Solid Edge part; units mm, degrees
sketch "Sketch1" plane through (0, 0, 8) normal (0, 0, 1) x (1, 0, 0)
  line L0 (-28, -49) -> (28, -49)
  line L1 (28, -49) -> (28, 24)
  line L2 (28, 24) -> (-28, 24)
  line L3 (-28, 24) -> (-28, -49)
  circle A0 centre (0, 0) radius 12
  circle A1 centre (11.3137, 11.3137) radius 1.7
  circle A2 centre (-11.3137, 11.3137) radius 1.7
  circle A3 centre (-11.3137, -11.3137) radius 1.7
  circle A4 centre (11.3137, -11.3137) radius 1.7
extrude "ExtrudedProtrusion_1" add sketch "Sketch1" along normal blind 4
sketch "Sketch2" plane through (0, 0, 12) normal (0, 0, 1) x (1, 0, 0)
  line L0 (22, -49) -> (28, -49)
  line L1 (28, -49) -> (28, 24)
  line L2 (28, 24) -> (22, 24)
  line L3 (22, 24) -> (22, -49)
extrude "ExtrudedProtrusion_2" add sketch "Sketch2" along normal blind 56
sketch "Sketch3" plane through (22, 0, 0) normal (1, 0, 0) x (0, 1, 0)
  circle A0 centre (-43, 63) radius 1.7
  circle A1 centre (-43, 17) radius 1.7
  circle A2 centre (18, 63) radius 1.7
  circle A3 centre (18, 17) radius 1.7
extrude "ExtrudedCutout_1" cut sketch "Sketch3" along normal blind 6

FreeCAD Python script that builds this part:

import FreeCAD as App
import Part
import Sketcher


def add_polygon(sketch, points):
    """Adds a closed chain of lines whose ends are joined by coincident constraints."""
    first, n = sketch.GeometryCount, len(points)
    for a, b in zip(points, points[1:] + points[:1]):
        sketch.addGeometry(Part.LineSegment(App.Vector(*a, 0), App.Vector(*b, 0)), False)
    for i in range(n):
        sketch.addConstraint(Sketcher.Constraint("Coincident", first + i, 2, first + (i + 1) % n, 1))

doc = App.newDocument("Part")
params = doc.addObject("Spreadsheet::Sheet", "Params")
for row, (alias, value) in enumerate([
    ("sketch1_diameter", "24 mm"),
    ("sketch1_diameter2", "3.4 mm"),
    ("sketch1_width", "56 mm"),
    ("sketch1_height", "73 mm"),
    ("pad1_length", "4 mm"),
    ("sketch2_width", "6 mm"),
    ("sketch2_height", "73 mm"),
    ("pad2_length", "56 mm"),
    ("sketch3_diameter", "3.4 mm"),
    ("pocket1_length", "6 mm"),
], start=1):
    params.set(f"A{row}", alias)
    params.set(f"B{row}", "=" + value)
    params.setAlias(f"B{row}", alias)

body = doc.addObject("PartDesign::Body", "Body")

sketch1 = doc.addObject("Sketcher::SketchObject", "Sketch")
body.addObject(sketch1)
sketch1.AttachmentSupport = (doc.XY_Plane, [""])
sketch1.MapMode = "FlatFace"
sketch1.AttachmentOffset = App.Placement(App.Vector(0, 0, 8), App.Rotation())
add_polygon(sketch1, [(-28, 24), (-28, -49), (28, -49), (28, 24)])
sketch1.addGeometry(Part.Circle(App.Vector(-11.3, -11.3, 0), App.Vector(0, 0, 1), 1.7), False)
sketch1.addGeometry(Part.Circle(App.Vector(-11.3, 11.3, 0), App.Vector(0, 0, 1), 1.7), False)
sketch1.addGeometry(Part.Circle(App.Vector(11.3, -11.3, 0), App.Vector(0, 0, 1), 1.7), False)
sketch1.addGeometry(Part.Circle(App.Vector(0, 0, 0), App.Vector(0, 0, 1), 12), False)
sketch1.addGeometry(Part.Circle(App.Vector(11.3, 11.3, 0), App.Vector(0, 0, 1), 1.7), False)
sketch1.addConstraint([
    Sketcher.Constraint("Vertical", 0),
    Sketcher.Constraint("Horizontal", 1),
    Sketcher.Constraint("Vertical", 2),
    Sketcher.Constraint("Horizontal", 3),
    Sketcher.Constraint("Coincident", 7, 3, -1, 1),
    Sketcher.Constraint("Equal", 4, 5),
    Sketcher.Constraint("Equal", 5, 6),
    Sketcher.Constraint("Equal", 6, 8),
    Sketcher.Constraint("Symmetric", 5, 3, 6, 3, -1, 1),
    Sketcher.Constraint("Symmetric", 4, 3, 8, 3, -1, 1),
    Sketcher.Constraint("Symmetric", 4, 3, 6, 3, -2),
    Sketcher.Constraint("Diameter", 7, 24.0),
    Sketcher.Constraint("Diameter", 4, 3.4),
    Sketcher.Constraint("DistanceX", 1, 1, 1, 2, 56.0),
    Sketcher.Constraint("DistanceY", 0, 2, 0, 1, 73.0),
    Sketcher.Constraint("DistanceX", 0, 2, -1, 1, 28.0),
    Sketcher.Constraint("DistanceY", 0, 2, -1, 1, 49.0),
    Sketcher.Constraint("DistanceX", 4, 3, -1, 1, 11.3137),
    Sketcher.Constraint("DistanceY", 4, 3, -1, 1, 11.3137),
])
sketch1.setExpression("Constraints[15]", "Params.sketch1_diameter")
sketch1.setExpression("Constraints[16]", "Params.sketch1_diameter2")
sketch1.setExpression("Constraints[17]", "Params.sketch1_width")
sketch1.setExpression("Constraints[18]", "Params.sketch1_height")
pad1 = doc.addObject("PartDesign::Pad", "Pad")
body.addObject(pad1)
pad1.Profile = sketch1
pad1.setExpression("Length", "Params.pad1_length")

sketch2 = doc.addObject("Sketcher::SketchObject", "Sketch001")
body.addObject(sketch2)
sketch2.AttachmentSupport = (doc.XY_Plane, [""])
sketch2.MapMode = "FlatFace"
sketch2.AttachmentOffset = App.Placement(App.Vector(0, 0, 12), App.Rotation())
add_polygon(sketch2, [(22, 24), (22, -49), (28, -49), (28, 24)])
sketch2.addConstraint([
    Sketcher.Constraint("Vertical", 0),
    Sketcher.Constraint("Horizontal", 1),
    Sketcher.Constraint("Vertical", 2),
    Sketcher.Constraint("Horizontal", 3),
    Sketcher.Constraint("DistanceX", 1, 1, 1, 2, 6.0),
    Sketcher.Constraint("DistanceY", 0, 2, 0, 1, 73.0),
    Sketcher.Constraint("DistanceX", -1, 1, 0, 2, 22.0),
    Sketcher.Constraint("DistanceY", 0, 2, -1, 1, 49.0),
])
sketch2.setExpression("Constraints[8]", "Params.sketch2_width")
sketch2.setExpression("Constraints[9]", "Params.sketch2_height")
pad2 = doc.addObject("PartDesign::Pad", "Pad001")
body.addObject(pad2)
pad2.Profile = sketch2
pad2.setExpression("Length", "Params.pad2_length")

sketch3 = doc.addObject("Sketcher::SketchObject", "Sketch002")
body.addObject(sketch3)
sketch3.AttachmentSupport = (doc.YZ_Plane, [""])
sketch3.MapMode = "FlatFace"
sketch3.AttachmentOffset = App.Placement(App.Vector(0, 0, 22), App.Rotation())
sketch3.addGeometry([
    Part.Circle(App.Vector(-43, 63, 0), App.Vector(0, 0, 1), 1.7),
    Part.Circle(App.Vector(-43, 17, 0), App.Vector(0, 0, 1), 1.7),
    Part.Circle(App.Vector(18, 63, 0), App.Vector(0, 0, 1), 1.7),
    Part.Circle(App.Vector(18, 17, 0), App.Vector(0, 0, 1), 1.7),
], False)
sketch3.addConstraint([
    Sketcher.Constraint("Equal", 0, 1),
    Sketcher.Constraint("Equal", 1, 2),
    Sketcher.Constraint("Equal", 2, 3),
    Sketcher.Constraint("Horizontal", 0, 3, 2, 3),
    Sketcher.Constraint("Horizontal", 1, 3, 3, 3),
    Sketcher.Constraint("Vertical", 0, 3, 1, 3),
    Sketcher.Constraint("Vertical", 2, 3, 3, 3),
    Sketcher.Constraint("Diameter", 0, 3.4),
    Sketcher.Constraint("DistanceX", 0, 3, -1, 1, 43.0),
    Sketcher.Constraint("DistanceY", -1, 1, 0, 3, 63.0),
    Sketcher.Constraint("DistanceY", -1, 1, 1, 3, 17.0),
    Sketcher.Constraint("DistanceX", -1, 1, 2, 3, 18.0),
])
sketch3.setExpression("Constraints[7]", "Params.sketch3_diameter")
pocket1 = doc.addObject("PartDesign::Pocket", "Pocket")
body.addObject(pocket1)
pocket1.Profile = sketch3
pocket1.setExpression("Length", "Params.pocket1_length")
pocket1.Reversed = True

doc.recompute()
